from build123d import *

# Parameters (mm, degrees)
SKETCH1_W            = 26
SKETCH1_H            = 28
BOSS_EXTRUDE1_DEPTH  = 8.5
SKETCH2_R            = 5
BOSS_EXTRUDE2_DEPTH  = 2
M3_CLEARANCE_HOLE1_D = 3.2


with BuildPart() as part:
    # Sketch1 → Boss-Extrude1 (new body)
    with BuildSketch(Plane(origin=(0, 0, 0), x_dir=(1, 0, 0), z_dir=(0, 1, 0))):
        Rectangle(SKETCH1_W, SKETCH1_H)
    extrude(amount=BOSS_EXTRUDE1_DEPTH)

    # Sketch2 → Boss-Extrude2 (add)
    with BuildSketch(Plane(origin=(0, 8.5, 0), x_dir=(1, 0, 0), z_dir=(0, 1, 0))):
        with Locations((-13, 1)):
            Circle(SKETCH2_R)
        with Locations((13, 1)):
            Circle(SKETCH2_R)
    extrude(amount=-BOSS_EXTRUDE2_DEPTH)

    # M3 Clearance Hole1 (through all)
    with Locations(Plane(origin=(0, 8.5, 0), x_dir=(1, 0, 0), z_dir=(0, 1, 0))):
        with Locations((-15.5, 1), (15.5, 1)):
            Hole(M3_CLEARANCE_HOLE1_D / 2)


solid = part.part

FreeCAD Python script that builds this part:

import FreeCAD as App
import Part
import Sketcher

V = App.Vector

doc = App.newDocument("Part")
params = doc.addObject("Spreadsheet::Sheet", "Params")
for row, (alias, value) in enumerate([
    ("sketch1_width", "26 mm"),
    ("sketch1_height", "28 mm"),
    ("pad1_length", "8.5 mm"),
    ("sketch2_diameter", "10 mm"),
    ("pad2_length", "2 mm"),
    ("sketch3_diameter", "3.2 mm"),
    ("hole_diameter", "3.2 mm"),
], start=1):
    params.set(f"A{row}", alias)
    params.set(f"B{row}", "=" + value)
    params.setAlias(f"B{row}", alias)

body = doc.addObject("PartDesign::Body", "Body")

# Sketch on XZ plane
sketch1 = body.newObject("Sketcher::SketchObject", "Sketch")
sketch1.AttachmentSupport = (doc.getObject("XZ_Plane"), [""])
sketch1.MapMode = "FlatFace"
sketch1.addGeometry([
    Part.LineSegment(V(-13, -14, 0), V(-13, 14, 0)),
    Part.LineSegment(V(-13, 14, 0), V(13, 14, 0)),
    Part.LineSegment(V(13, 14, 0), V(13, -14, 0)),
    Part.LineSegment(V(13, -14, 0), V(-13, -14, 0)),
], False)
sketch1.addConstraint([
    Sketcher.Constraint("Coincident", 0, 2, 1, 1),
    Sketcher.Constraint("Coincident", 1, 2, 2, 1),
    Sketcher.Constraint("Coincident", 2, 2, 3, 1),
    Sketcher.Constraint("Coincident", 3, 2, 0, 1),
    Sketcher.Constraint("Vertical", 0),
    Sketcher.Constraint("Horizontal", 1),
    Sketcher.Constraint("Vertical", 2),
    Sketcher.Constraint("Horizontal", 3),
    Sketcher.Constraint("Symmetric", 0, 2, 2, 2, -1, 1),
    Sketcher.Constraint("DistanceX", 1, 1, 1, 2, 26.0),
    Sketcher.Constraint("DistanceY", 0, 1, 0, 2, 28.0),
])
sketch1.setExpression("Constraints[9]", "Params.sketch1_width")
sketch1.setExpression("Constraints[10]", "Params.sketch1_height")
pad1 = body.newObject("PartDesign::Pad", "Pad")
pad1.Profile = sketch1
pad1.setExpression("Length", "Params.pad1_length")
pad1.Reversed = True

# Sketch on XZ plane
sketch2 = body.newObject("Sketcher::SketchObject", "Sketch001")
sketch2.AttachmentSupport = (doc.getObject("XZ_Plane"), [""])
sketch2.MapMode = "FlatFace"
sketch2.AttachmentOffset = App.Placement(V(0, 0, -8.5), App.Rotation())
sketch2.addGeometry([
    Part.Circle(V(-13, -1, 0), V(0, 0, 1), 5),
    Part.Circle(V(13, -1, 0), V(0, 0, 1), 5),
], False)
sketch2.addConstraint([
    Sketcher.Constraint("Equal", 0, 1),
    Sketcher.Constraint("Symmetric", 0, 3, 1, 3, -2),
    Sketcher.Constraint("Diameter", 0, 10.0),
    Sketcher.Constraint("DistanceX", 0, 3, -1, 1, 13.0),
    Sketcher.Constraint("DistanceY", 0, 3, -1, 1, 1.0),
])
sketch2.setExpression("Constraints[2]", "Params.sketch2_diameter")
pad2 = body.newObject("PartDesign::Pad", "Pad001")
pad2.Profile = sketch2
pad2.setExpression("Length", "Params.pad2_length")

# Sketch on XZ plane
sketch3 = body.newObject("Sketcher::SketchObject", "Sketch002")
sketch3.AttachmentSupport = (doc.getObject("XZ_Plane"), [""])
sketch3.MapMode = "FlatFace"
sketch3.AttachmentOffset = App.Placement(V(0, 0, -8.5), App.Rotation())
sketch3.addGeometry([
    Part.Circle(V(-15.5, -1, 0), V(0, 0, 1), 1.6),
    Part.Circle(V(15.5, -1, 0), V(0, 0, 1), 1.6),
], False)
sketch3.addConstraint([
    Sketcher.Constraint("Equal", 0, 1),
    Sketcher.Constraint("Symmetric", 0, 3, 1, 3, -2),
    Sketcher.Constraint("Diameter", 0, 3.2),
    Sketcher.Constraint("DistanceY", 0, 3, -1, 1, 1.0),
    Sketcher.Constraint("DistanceX", 0, 3, 1, 3, 31.0),
])
sketch3.setExpression("Constraints[2]", "Params.sketch3_diameter")
doc.recompute()
hole = body.newObject("PartDesign::Hole", "Hole")
hole.Profile = sketch3
hole.ThreadType = "None"
hole.setExpression("Diameter", "Params.hole_diameter")
hole.DepthType = "ThroughAll"
hole.Reversed = True

doc.recompute()
